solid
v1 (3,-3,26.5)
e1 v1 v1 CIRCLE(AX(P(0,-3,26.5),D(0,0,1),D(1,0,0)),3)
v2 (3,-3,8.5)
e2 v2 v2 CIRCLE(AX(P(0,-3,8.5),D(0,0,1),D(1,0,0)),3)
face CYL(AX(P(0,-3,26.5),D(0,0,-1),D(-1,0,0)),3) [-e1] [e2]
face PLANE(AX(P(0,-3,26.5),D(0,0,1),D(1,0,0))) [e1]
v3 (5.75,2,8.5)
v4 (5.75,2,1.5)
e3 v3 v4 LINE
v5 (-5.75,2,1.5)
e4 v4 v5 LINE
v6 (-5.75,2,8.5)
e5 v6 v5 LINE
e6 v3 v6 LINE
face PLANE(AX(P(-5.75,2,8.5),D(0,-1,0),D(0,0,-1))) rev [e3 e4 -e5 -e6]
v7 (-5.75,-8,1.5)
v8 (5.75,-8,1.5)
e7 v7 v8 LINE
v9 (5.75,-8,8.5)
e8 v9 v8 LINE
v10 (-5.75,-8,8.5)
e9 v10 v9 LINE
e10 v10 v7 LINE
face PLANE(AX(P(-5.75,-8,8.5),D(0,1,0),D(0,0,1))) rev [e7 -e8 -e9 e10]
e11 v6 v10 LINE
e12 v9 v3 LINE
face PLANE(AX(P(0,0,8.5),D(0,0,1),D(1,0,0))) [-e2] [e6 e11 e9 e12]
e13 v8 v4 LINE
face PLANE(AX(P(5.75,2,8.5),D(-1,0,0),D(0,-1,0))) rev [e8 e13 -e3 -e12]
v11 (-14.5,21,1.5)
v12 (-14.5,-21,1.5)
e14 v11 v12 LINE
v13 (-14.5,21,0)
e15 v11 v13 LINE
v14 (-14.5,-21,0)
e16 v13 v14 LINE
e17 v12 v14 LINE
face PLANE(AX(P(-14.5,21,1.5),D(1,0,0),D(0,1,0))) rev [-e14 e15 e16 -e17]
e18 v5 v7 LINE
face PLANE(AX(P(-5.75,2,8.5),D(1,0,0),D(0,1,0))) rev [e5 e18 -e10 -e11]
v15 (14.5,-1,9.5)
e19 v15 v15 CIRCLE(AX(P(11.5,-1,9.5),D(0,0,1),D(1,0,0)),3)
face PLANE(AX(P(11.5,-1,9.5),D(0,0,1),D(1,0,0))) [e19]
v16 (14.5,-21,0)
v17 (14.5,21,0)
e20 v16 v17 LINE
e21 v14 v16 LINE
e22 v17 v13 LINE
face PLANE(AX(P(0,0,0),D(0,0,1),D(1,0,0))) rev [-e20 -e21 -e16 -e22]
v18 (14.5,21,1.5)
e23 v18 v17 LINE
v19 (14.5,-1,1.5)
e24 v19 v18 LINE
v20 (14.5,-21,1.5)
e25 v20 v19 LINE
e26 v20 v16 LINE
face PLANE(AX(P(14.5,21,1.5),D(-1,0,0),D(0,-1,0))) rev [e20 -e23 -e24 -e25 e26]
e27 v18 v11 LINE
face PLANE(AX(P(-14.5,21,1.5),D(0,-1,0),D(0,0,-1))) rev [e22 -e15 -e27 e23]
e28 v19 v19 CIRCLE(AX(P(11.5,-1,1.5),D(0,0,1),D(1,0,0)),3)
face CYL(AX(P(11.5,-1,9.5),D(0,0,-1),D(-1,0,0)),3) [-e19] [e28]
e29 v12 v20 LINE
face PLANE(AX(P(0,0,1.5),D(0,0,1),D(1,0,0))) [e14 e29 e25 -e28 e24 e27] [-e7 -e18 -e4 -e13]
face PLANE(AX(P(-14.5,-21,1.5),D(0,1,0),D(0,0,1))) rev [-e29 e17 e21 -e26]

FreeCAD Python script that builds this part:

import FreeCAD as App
import Part
import Sketcher

doc = App.newDocument("Part")
params = doc.addObject("Spreadsheet::Sheet", "Params")
for row, (alias, value) in enumerate([
    ("sketch1_width", "29 mm"),
    ("sketch1_height", "42 mm"),
    ("pad1_length", "1.5 mm"),
    ("sketch2_height", "10 mm"),
    ("sketch2_width", "11.5 mm"),
    ("pad2_length", "7 mm"),
    ("sketch3_diameter", "6 mm"),
    ("pad3_length", "18 mm"),
    ("sketch4_diameter", "6 mm"),
    ("pad4_length", "8 mm"),
], start=1):
    params.set(f"A{row}", alias)
    params.set(f"B{row}", "=" + value)
    params.setAlias(f"B{row}", alias)

body = doc.addObject("PartDesign::Body", "Body")

sketch1 = body.newObject("Sketcher::SketchObject", "Sketch")
sketch1.AttachmentSupport = (doc.getObject("XY_Plane"), [""])
sketch1.MapMode = "FlatFace"
sketch1.addGeometry(Part.LineSegment(App.Vector(-14, 21, 0), App.Vector(-14, -21, 0)), False)
sketch1.addGeometry(Part.LineSegment(App.Vector(-14, -21, 0), App.Vector(14, -21, 0)), False)
sketch1.addGeometry(Part.LineSegment(App.Vector(14, -21, 0), App.Vector(14, 21, 0)), False)
sketch1.addGeometry(Part.LineSegment(App.Vector(14, 21, 0), App.Vector(-14, 21, 0)), False)
sketch1.addConstraint(Sketcher.Constraint("Coincident", 0, 2, 1, 1))
sketch1.addConstraint(Sketcher.Constraint("Coincident", 1, 2, 2, 1))
sketch1.addConstraint(Sketcher.Constraint("Coincident", 2, 2, 3, 1))
sketch1.addConstraint(Sketcher.Constraint("Coincident", 3, 2, 0, 1))
sketch1.addConstraint(Sketcher.Constraint("Vertical", 0))
sketch1.addConstraint(Sketcher.Constraint("Horizontal", 1))
sketch1.addConstraint(Sketcher.Constraint("Vertical", 2))
sketch1.addConstraint(Sketcher.Constraint("Horizontal", 3))
sketch1.addConstraint(Sketcher.Constraint("Symmetric", 0, 2, 2, 2, -1, 1))
sketch1.addConstraint(Sketcher.Constraint("DistanceX", 1, 1, 1, 2, 29.0))
sketch1.addConstraint(Sketcher.Constraint("DistanceY", 0, 2, 0, 1, 42.0))
sketch1.setExpression("Constraints[9]", "Params.sketch1_width")
sketch1.setExpression("Constraints[10]", "Params.sketch1_height")
pad1 = body.newObject("PartDesign::Pad", "Pad")
pad1.Profile = sketch1
pad1.setExpression("Length", "Params.pad1_length")

sketch2 = body.newObject("Sketcher::SketchObject", "Sketch001")
sketch2.AttachmentSupport = (doc.getObject("XY_Plane"), [""])
sketch2.MapMode = "FlatFace"
sketch2.AttachmentOffset = App.Placement(App.Vector(0, 0, 1.5), App.Rotation())
sketch2.addGeometry(Part.LineSegment(App.Vector(-6, 2, 0), App.Vector(-6, -8, 0)), False)
sketch2.addGeometry(Part.LineSegment(App.Vector(-6, -8, 0), App.Vector(6, -8, 0)), False)
sketch2.addGeometry(Part.LineSegment(App.Vector(6, -8, 0), App.Vector(6, 2, 0)), False)
sketch2.addGeometry(Part.LineSegment(App.Vector(6, 2, 0), App.Vector(-6, 2, 0)), False)
sketch2.addConstraint(Sketcher.Constraint("Coincident", 0, 2, 1, 1))
sketch2.addConstraint(Sketcher.Constraint("Coincident", 1, 2, 2, 1))
sketch2.addConstraint(Sketcher.Constraint("Coincident", 2, 2, 3, 1))
sketch2.addConstraint(Sketcher.Constraint("Coincident", 3, 2, 0, 1))
sketch2.addConstraint(Sketcher.Constraint("Vertical", 0))
sketch2.addConstraint(Sketcher.Constraint("Horizontal", 1))
sketch2.addConstraint(Sketcher.Constraint("Vertical", 2))
sketch2.addConstraint(Sketcher.Constraint("Horizontal", 3))
sketch2.addConstraint(Sketcher.Constraint("DistanceY", 0, 2, 0, 1, 10.0))
sketch2.addConstraint(Sketcher.Constraint("DistanceX", 1, 1, 1, 2, 11.5))
sketch2.addConstraint(Sketcher.Constraint("DistanceY", 0, 2, -1, 1, 8.0))
sketch2.addConstraint(Sketcher.Constraint("DistanceX", 0, 2, -1, 1, 5.75))
sketch2.setExpression("Constraints[8]", "Params.sketch2_height")
sketch2.setExpression("Constraints[9]", "Params.sketch2_width")
pad2 = body.newObject("PartDesign::Pad", "Pad001")
pad2.Profile = sketch2
pad2.setExpression("Length", "Params.pad2_length")

sketch3 = body.newObject("Sketcher::SketchObject", "Sketch002")
sketch3.AttachmentSupport = (doc.getObject("XY_Plane"), [""])
sketch3.MapMode = "FlatFace"
sketch3.AttachmentOffset = App.Placement(App.Vector(0, 0, 8.5), App.Rotation())
sketch3.addGeometry(Part.Circle(App.Vector(0, -3, 0), App.Vector(0, 0, 1), 3), False)
sketch3.addConstraint(Sketcher.Constraint("PointOnObject", 0, 3, -2))
sketch3.addConstraint(Sketcher.Constraint("Diameter", 0, 6.0))
sketch3.addConstraint(Sketcher.Constraint("DistanceY", 0, 3, -1, 1, 3.0))
sketch3.setExpression("Constraints[1]", "Params.sketch3_diameter")
pad3 = body.newObject("PartDesign::Pad", "Pad002")
pad3.Profile = sketch3
pad3.setExpression("Length", "Params.pad3_length")

sketch4 = body.newObject("Sketcher::SketchObject", "Sketch003")
sketch4.AttachmentSupport = (doc.getObject("XY_Plane"), [""])
sketch4.MapMode = "FlatFace"
sketch4.AttachmentOffset = App.Placement(App.Vector(0, 0, 1.5), App.Rotation())
sketch4.addGeometry(Part.Circle(App.Vector(11.5, -1, 0), App.Vector(0, 0, 1), 3), False)
sketch4.addConstraint(Sketcher.Constraint("Diameter", 0, 6.0))
sketch4.addConstraint(Sketcher.Constraint("DistanceY", 0, 3, -1, 1, 1.0))
sketch4.addConstraint(Sketcher.Constraint("DistanceX", -1, 1, 0, 3, 11.5))
sketch4.setExpression("Constraints[0]", "Params.sketch4_diameter")
pad4 = body.newObject("PartDesign::Pad", "Pad003")
pad4.Profile = sketch4
pad4.setExpression("Length", "Params.pad4_length")

doc.recompute()
